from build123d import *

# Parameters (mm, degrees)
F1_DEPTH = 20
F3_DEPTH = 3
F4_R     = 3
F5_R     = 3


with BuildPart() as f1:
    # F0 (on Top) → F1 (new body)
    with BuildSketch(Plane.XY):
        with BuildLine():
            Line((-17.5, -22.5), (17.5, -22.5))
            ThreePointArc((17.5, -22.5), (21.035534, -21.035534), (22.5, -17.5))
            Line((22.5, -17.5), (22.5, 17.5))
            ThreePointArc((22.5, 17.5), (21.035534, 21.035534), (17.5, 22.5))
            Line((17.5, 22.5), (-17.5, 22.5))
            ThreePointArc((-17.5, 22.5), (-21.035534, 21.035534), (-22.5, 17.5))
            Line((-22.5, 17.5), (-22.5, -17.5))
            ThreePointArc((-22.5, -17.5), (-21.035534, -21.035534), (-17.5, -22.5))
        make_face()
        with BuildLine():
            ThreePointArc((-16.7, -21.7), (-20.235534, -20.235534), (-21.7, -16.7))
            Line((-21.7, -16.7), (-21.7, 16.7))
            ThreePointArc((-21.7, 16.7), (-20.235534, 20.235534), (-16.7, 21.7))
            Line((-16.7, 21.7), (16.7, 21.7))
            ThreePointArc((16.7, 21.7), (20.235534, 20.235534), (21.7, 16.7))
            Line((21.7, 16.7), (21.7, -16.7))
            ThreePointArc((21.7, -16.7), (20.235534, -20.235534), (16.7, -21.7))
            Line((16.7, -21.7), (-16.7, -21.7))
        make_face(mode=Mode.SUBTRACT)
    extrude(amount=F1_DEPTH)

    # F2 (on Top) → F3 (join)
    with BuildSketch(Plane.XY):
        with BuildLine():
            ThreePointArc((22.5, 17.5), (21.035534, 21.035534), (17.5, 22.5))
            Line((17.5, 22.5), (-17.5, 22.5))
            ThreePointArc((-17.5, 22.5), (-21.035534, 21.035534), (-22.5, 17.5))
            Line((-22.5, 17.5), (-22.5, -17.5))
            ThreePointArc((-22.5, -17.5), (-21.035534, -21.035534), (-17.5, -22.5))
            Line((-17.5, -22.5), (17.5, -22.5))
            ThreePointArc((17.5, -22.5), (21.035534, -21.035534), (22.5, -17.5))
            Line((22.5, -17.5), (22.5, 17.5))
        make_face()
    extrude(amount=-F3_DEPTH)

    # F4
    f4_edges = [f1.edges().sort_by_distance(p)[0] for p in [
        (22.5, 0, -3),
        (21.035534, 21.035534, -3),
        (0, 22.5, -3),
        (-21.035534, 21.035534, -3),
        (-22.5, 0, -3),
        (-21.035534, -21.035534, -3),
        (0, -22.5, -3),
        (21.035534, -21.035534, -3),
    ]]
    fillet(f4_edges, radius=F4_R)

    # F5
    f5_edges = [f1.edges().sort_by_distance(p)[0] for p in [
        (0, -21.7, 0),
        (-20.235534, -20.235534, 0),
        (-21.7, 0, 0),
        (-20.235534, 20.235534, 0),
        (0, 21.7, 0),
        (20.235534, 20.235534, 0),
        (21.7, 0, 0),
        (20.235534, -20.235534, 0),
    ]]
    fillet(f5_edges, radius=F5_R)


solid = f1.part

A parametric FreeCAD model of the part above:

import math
import FreeCAD as App
import Part
import Sketcher
from FreeCAD import Vector


def edges_at(feature, points):
    """Names of the edges that pass closest to the given points."""
    edges = feature.Shape.Edges
    near = lambda p: min(range(len(edges)), key=lambda i: edges[i].distToShape(Part.Vertex(*p))[0])
    return sorted({f"Edge{near(p) + 1}" for p in points})

doc = App.newDocument("Part")
params = doc.addObject("Spreadsheet::Sheet", "Params")
for row, (alias, value) in enumerate([
    ("sketch1_radius", "5 mm"),
    ("sketch1_width", "35 mm"),
    ("sketch1_width2", "33.4 mm"),
    ("pad1_length", "20 mm"),
    ("sketch2_radius", "5 mm"),
    ("sketch2_width", "35 mm"),
    ("pad2_length", "3 mm"),
    ("fillet_radius", "3 mm"),
    ("fillet2_radius", "3 mm"),
], start=1):
    params.set(f"A{row}", alias)
    params.set(f"B{row}", "=" + value)
    params.setAlias(f"B{row}", alias)

body = doc.addObject("PartDesign::Body", "Body")

sketch1 = body.newObject("Sketcher::SketchObject", "Sketch")
sketch1.AttachmentSupport = (doc.getObject("XY_Plane"), [""])
sketch1.MapMode = "FlatFace"
sketch1.addGeometry(Part.LineSegment(Vector(-17.5, -22.5, 0), Vector(17.5, -22.5, 0)), False)
sketch1.addGeometry(Part.ArcOfCircle(Part.Circle(Vector(17.5, -17.5, 0), Vector(0, 0, 1), 5), math.radians(-90), math.radians(0)), False)
sketch1.addGeometry(Part.LineSegment(Vector(22.5, -17.5, 0), Vector(22.5, 17.5, 0)), False)
sketch1.addGeometry(Part.ArcOfCircle(Part.Circle(Vector(17.5, 17.5, 0), Vector(0, 0, 1), 5), math.radians(0), math.radians(90)), False)
sketch1.addGeometry(Part.LineSegment(Vector(17.5, 22.5, 0), Vector(-17.5, 22.5, 0)), False)
sketch1.addGeometry(Part.ArcOfCircle(Part.Circle(Vector(-17.5, 17.5, 0), Vector(0, 0, 1), 5), math.radians(90), math.radians(180)), False)
sketch1.addGeometry(Part.LineSegment(Vector(-22.5, 17.5, 0), Vector(-22.5, -17.5, 0)), False)
sketch1.addGeometry(Part.ArcOfCircle(Part.Circle(Vector(-17.5, -17.5, 0), Vector(0, 0, 1), 5), math.radians(180), math.radians(270)), False)
sketch1.addGeometry(Part.LineSegment(Vector(16.7, -21.7, 0), Vector(-16.7, -21.7, 0)), False)
sketch1.addGeometry(Part.ArcOfCircle(Part.Circle(Vector(-16.7, -16.7, 0), Vector(0, 0, 1), 5), math.radians(180), math.radians(270)), False)
sketch1.addGeometry(Part.LineSegment(Vector(-21.7, -16.7, 0), Vector(-21.7, 16.7, 0)), False)
sketch1.addGeometry(Part.ArcOfCircle(Part.Circle(Vector(-16.7, 16.7, 0), Vector(0, 0, 1), 5), math.radians(90), math.radians(180)), False)
sketch1.addGeometry(Part.LineSegment(Vector(-16.7, 21.7, 0), Vector(16.7, 21.7, 0)), False)
sketch1.addGeometry(Part.ArcOfCircle(Part.Circle(Vector(16.7, 16.7, 0), Vector(0, 0, 1), 5), math.radians(0), math.radians(90)), False)
sketch1.addGeometry(Part.LineSegment(Vector(21.7, 16.7, 0), Vector(21.7, -16.7, 0)), False)
sketch1.addGeometry(Part.ArcOfCircle(Part.Circle(Vector(16.7, -16.7, 0), Vector(0, 0, 1), 5), math.radians(-90), math.radians(0)), False)
sketch1.addConstraint(Sketcher.Constraint("Tangent", 0, 2, 1, 1))
sketch1.addConstraint(Sketcher.Constraint("Tangent", 1, 2, 2, 1))
sketch1.addConstraint(Sketcher.Constraint("Tangent", 2, 2, 3, 1))
sketch1.addConstraint(Sketcher.Constraint("Tangent", 3, 2, 4, 1))
sketch1.addConstraint(Sketcher.Constraint("Tangent", 4, 2, 5, 1))
sketch1.addConstraint(Sketcher.Constraint("Tangent", 5, 2, 6, 1))
sketch1.addConstraint(Sketcher.Constraint("Tangent", 6, 2, 7, 1))
sketch1.addConstraint(Sketcher.Constraint("Tangent", 7, 2, 0, 1))
sketch1.addConstraint(Sketcher.Constraint("Tangent", 8, 2, 9, 2))
sketch1.addConstraint(Sketcher.Constraint("Tangent", 9, 1, 10, 1))
sketch1.addConstraint(Sketcher.Constraint("Tangent", 10, 2, 11, 2))
sketch1.addConstraint(Sketcher.Constraint("Tangent", 11, 1, 12, 1))
sketch1.addConstraint(Sketcher.Constraint("Tangent", 12, 2, 13, 2))
sketch1.addConstraint(Sketcher.Constraint("Tangent", 13, 1, 14, 1))
sketch1.addConstraint(Sketcher.Constraint("Tangent", 14, 2, 15, 2))
sketch1.addConstraint(Sketcher.Constraint("Tangent", 15, 1, 8, 1))
sketch1.addConstraint(Sketcher.Constraint("Horizontal", 0))
sketch1.addConstraint(Sketcher.Constraint("Vertical", 2))
sketch1.addConstraint(Sketcher.Constraint("Horizontal", 4))
sketch1.addConstraint(Sketcher.Constraint("Vertical", 6))
sketch1.addConstraint(Sketcher.Constraint("Horizontal", 8))
sketch1.addConstraint(Sketcher.Constraint("Vertical", 10))
sketch1.addConstraint(Sketcher.Constraint("Horizontal", 12))
sketch1.addConstraint(Sketcher.Constraint("Vertical", 14))
sketch1.addConstraint(Sketcher.Constraint("Equal", 1, 3))
sketch1.addConstraint(Sketcher.Constraint("Equal", 3, 5))
sketch1.addConstraint(Sketcher.Constraint("Equal", 5, 7))
sketch1.addConstraint(Sketcher.Constraint("Equal", 7, 9))
sketch1.addConstraint(Sketcher.Constraint("Equal", 9, 11))
sketch1.addConstraint(Sketcher.Constraint("Equal", 11, 13))
sketch1.addConstraint(Sketcher.Constraint("Equal", 13, 15))
sketch1.addConstraint(Sketcher.Constraint("Symmetric", 1, 3, 5, 3, -1, 1))
sketch1.addConstraint(Sketcher.Constraint("Symmetric", 9, 3, 13, 3, -1, 1))
sketch1.addConstraint(Sketcher.Constraint("Equal", 4, 2))
sketch1.addConstraint(Sketcher.Constraint("Equal", 12, 10))
sketch1.addConstraint(Sketcher.Constraint("Radius", 1, 5.0))
sketch1.addConstraint(Sketcher.Constraint("DistanceX", 0, 1, 0, 2, 35.0))
sketch1.addConstraint(Sketcher.Constraint("DistanceX", 8, 2, 8, 1, 33.4))
sketch1.setExpression("Constraints[35]", "Params.sketch1_radius")
sketch1.setExpression("Constraints[36]", "Params.sketch1_width")
sketch1.setExpression("Constraints[37]", "Params.sketch1_width2")
pad1 = body.newObject("PartDesign::Pad", "Pad")
pad1.Profile = sketch1
pad1.setExpression("Length", "Params.pad1_length")

sketch2 = body.newObject("Sketcher::SketchObject", "Sketch001")
sketch2.AttachmentSupport = (doc.getObject("XY_Plane"), [""])
sketch2.MapMode = "FlatFace"
sketch2.addGeometry(Part.ArcOfCircle(Part.Circle(Vector(17.5, 17.5, 0), Vector(0, 0, 1), 5), math.radians(0), math.radians(90)), False)
sketch2.addGeometry(Part.LineSegment(Vector(17.5, 22.5, 0), Vector(-17.5, 22.5, 0)), False)
sketch2.addGeometry(Part.ArcOfCircle(Part.Circle(Vector(-17.5, 17.5, 0), Vector(0, 0, 1), 5), math.radians(90), math.radians(180)), False)
sketch2.addGeometry(Part.LineSegment(Vector(-22.5, 17.5, 0), Vector(-22.5, -17.5, 0)), False)
sketch2.addGeometry(Part.ArcOfCircle(Part.Circle(Vector(-17.5, -17.5, 0), Vector(0, 0, 1), 5), math.radians(180), math.radians(270)), False)
sketch2.addGeometry(Part.LineSegment(Vector(-17.5, -22.5, 0), Vector(17.5, -22.5, 0)), False)
sketch2.addGeometry(Part.ArcOfCircle(Part.Circle(Vector(17.5, -17.5, 0), Vector(0, 0, 1), 5), math.radians(-90), math.radians(0)), False)
sketch2.addGeometry(Part.LineSegment(Vector(22.5, -17.5, 0), Vector(22.5, 17.5, 0)), False)
sketch2.addConstraint(Sketcher.Constraint("Tangent", 0, 2, 1, 1))
sketch2.addConstraint(Sketcher.Constraint("Tangent", 1, 2, 2, 1))
sketch2.addConstraint(Sketcher.Constraint("Tangent", 2, 2, 3, 1))
sketch2.addConstraint(Sketcher.Constraint("Tangent", 3, 2, 4, 1))
sketch2.addConstraint(Sketcher.Constraint("Tangent", 4, 2, 5, 1))
sketch2.addConstraint(Sketcher.Constraint("Tangent", 5, 2, 6, 1))
sketch2.addConstraint(Sketcher.Constraint("Tangent", 6, 2, 7, 1))
sketch2.addConstraint(Sketcher.Constraint("Tangent", 7, 2, 0, 1))
sketch2.addConstraint(Sketcher.Constraint("Horizontal", 1))
sketch2.addConstraint(Sketcher.Constraint("Vertical", 3))
sketch2.addConstraint(Sketcher.Constraint("Horizontal", 5))
sketch2.addConstraint(Sketcher.Constraint("Vertical", 7))
sketch2.addConstraint(Sketcher.Constraint("Equal", 0, 2))
sketch2.addConstraint(Sketcher.Constraint("Equal", 2, 4))
sketch2.addConstraint(Sketcher.Constraint("Equal", 4, 6))
sketch2.addConstraint(Sketcher.Constraint("Symmetric", 0, 3, 4, 3, -1, 1))
sketch2.addConstraint(Sketcher.Constraint("Equal", 5, 3))
sketch2.addConstraint(Sketcher.Constraint("Radius", 0, 5.0))
sketch2.addConstraint(Sketcher.Constraint("DistanceX", 1, 2, 1, 1, 35.0))
sketch2.setExpression("Constraints[17]", "Params.sketch2_radius")
sketch2.setExpression("Constraints[18]", "Params.sketch2_width")
pad2 = body.newObject("PartDesign::Pad", "Pad001")
pad2.Profile = sketch2
pad2.setExpression("Length", "Params.pad2_length")
pad2.Reversed = True
doc.recompute()

fillet = body.newObject("PartDesign::Fillet", "Fillet")
fillet.Base = (pad2, edges_at(pad2, [
    (22.5, 0, -3),
    (21.036, 21.036, -3),
    (0, 22.5, -3),
    (-21.036, 21.036, -3),
    (-22.5, 0, -3),
    (-21.036, -21.036, -3),
    (0, -22.5, -3),
    (21.036, -21.036, -3),
]))
fillet.setExpression("Radius", "Params.fillet_radius")
doc.recompute()

fillet2 = body.newObject("PartDesign::Fillet", "Fillet001")
fillet2.Base = (fillet, edges_at(fillet, [
    (0, -21.7, 0),
    (-20.236, -20.236, 0),
    (-21.7, 0, 0),
    (-20.236, 20.236, 0),
    (0, 21.7, 0),
    (20.236, 20.236, 0),
    (21.7, 0, 0),
    (20.236, -20.236, 0),
]))
fillet2.setExpression("Radius", "Params.fillet2_radius")

doc.recompute()
